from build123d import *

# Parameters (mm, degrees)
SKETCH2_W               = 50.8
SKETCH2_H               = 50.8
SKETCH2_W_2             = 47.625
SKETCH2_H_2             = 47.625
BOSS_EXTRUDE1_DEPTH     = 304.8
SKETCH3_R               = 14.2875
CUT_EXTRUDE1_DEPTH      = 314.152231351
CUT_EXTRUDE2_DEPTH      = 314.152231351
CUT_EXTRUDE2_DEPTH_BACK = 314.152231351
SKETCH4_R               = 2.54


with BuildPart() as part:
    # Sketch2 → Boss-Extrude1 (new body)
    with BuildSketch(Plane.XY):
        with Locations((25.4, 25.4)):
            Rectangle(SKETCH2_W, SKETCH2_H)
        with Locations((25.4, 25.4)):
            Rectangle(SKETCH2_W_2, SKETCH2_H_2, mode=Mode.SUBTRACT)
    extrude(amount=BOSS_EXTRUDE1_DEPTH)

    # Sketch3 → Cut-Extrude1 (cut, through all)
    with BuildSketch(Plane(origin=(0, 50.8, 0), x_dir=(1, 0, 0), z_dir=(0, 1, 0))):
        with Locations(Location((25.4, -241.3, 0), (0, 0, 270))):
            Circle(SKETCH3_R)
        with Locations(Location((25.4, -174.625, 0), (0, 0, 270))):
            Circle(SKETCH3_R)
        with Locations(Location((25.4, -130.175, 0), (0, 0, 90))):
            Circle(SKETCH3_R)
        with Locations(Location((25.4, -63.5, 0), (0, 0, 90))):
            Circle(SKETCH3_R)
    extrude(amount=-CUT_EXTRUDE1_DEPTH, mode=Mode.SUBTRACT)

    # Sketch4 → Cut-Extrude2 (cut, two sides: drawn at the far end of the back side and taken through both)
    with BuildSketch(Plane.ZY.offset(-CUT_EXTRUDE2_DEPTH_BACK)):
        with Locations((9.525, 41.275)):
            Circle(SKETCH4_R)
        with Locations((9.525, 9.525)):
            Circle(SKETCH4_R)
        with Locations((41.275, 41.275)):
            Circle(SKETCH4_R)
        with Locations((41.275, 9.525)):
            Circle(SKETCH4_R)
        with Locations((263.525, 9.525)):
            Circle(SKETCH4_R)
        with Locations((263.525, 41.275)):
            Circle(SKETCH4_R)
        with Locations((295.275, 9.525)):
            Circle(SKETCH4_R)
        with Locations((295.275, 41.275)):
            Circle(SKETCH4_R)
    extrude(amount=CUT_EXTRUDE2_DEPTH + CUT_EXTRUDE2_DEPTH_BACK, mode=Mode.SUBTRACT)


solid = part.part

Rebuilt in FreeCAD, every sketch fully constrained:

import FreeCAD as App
import Part
import Sketcher
Q = App.Units.Quantity

doc = App.newDocument("Part")
body = doc.addObject("PartDesign::Body", "Body")

# Sketch on XY plane
sketch1 = body.newObject("Sketcher::SketchObject", "Sketch")
sketch1.AttachmentSupport = (doc.getObject("XY_Plane"), [""])
sketch1.MapMode = "FlatFace"
sketch1.addGeometry([
    Part.LineSegment(App.Vector(0, 51, 0), App.Vector(0, 0, 0)),  # 0
    Part.LineSegment(App.Vector(0, 0, 0), App.Vector(51, 0, 0)),  # 1
    Part.LineSegment(App.Vector(51, 0, 0), App.Vector(51, 51, 0)),  # 2
    Part.LineSegment(App.Vector(51, 51, 0), App.Vector(0, 51, 0)),  # 3
    Part.LineSegment(App.Vector(49, 2, 0), App.Vector(2, 2, 0)),  # 4
    Part.LineSegment(App.Vector(2, 2, 0), App.Vector(2, 49, 0)),  # 5
    Part.LineSegment(App.Vector(2, 49, 0), App.Vector(49, 49, 0)),  # 6
    Part.LineSegment(App.Vector(49, 49, 0), App.Vector(49, 2, 0)),  # 7
], False)
sketch1.addConstraint([
    Sketcher.Constraint("Coincident", 0, 2, 1, 1),
    Sketcher.Constraint("Coincident", 1, 2, 2, 1),
    Sketcher.Constraint("Coincident", 2, 2, 3, 1),
    Sketcher.Constraint("Coincident", 3, 2, 0, 1),
    Sketcher.Constraint("Coincident", 4, 2, 5, 1),
    Sketcher.Constraint("Coincident", 5, 2, 6, 1),
    Sketcher.Constraint("Coincident", 6, 2, 7, 1),
    Sketcher.Constraint("Coincident", 7, 2, 4, 1),
    Sketcher.Constraint("Vertical", 0),
    Sketcher.Constraint("Horizontal", 1),
    Sketcher.Constraint("Vertical", 2),
    Sketcher.Constraint("Horizontal", 3),
    Sketcher.Constraint("Horizontal", 4),
    Sketcher.Constraint("Vertical", 5),
    Sketcher.Constraint("Horizontal", 6),
    Sketcher.Constraint("Vertical", 7),
    Sketcher.Constraint("Coincident", 0, 2, -1, 1),
    Sketcher.Constraint("Equal", 3, 0),
    Sketcher.Constraint("Equal", 6, 5),
    Sketcher.Constraint("DistanceX", 1, 1, 1, 2, Q("2 in")),
    Sketcher.Constraint("DistanceX", 4, 2, 4, 1, Q("1.875 in")),
    Sketcher.Constraint("DistanceX", -1, 1, 4, 2, Q("0.0625 in")),
    Sketcher.Constraint("DistanceY", -1, 1, 4, 2, Q("0.0625 in")),
])
pad1 = body.newObject("PartDesign::Pad", "Pad")
pad1.Profile = sketch1
pad1.Length = Q("12 in")

# Sketch on XZ plane
sketch2 = body.newObject("Sketcher::SketchObject", "Sketch001")
sketch2.AttachmentSupport = (doc.getObject("XZ_Plane"), [""])
sketch2.MapMode = "FlatFace"
sketch2.AttachmentOffset = App.Placement(App.Vector(0, 0, -2 * 25.4), App.Rotation())
sketch2.addGeometry([
    Part.Circle(App.Vector(25, 241, 0), App.Vector(0, 0, 1), 14),
    Part.Circle(App.Vector(25, 175, 0), App.Vector(0, 0, 1), 14),
    Part.Circle(App.Vector(25, 130, 0), App.Vector(0, 0, 1), 14),
    Part.Circle(App.Vector(25, 64, 0), App.Vector(0, 0, 1), 14),
], False)
sketch2.addConstraint([
    Sketcher.Constraint("Equal", 0, 1),
    Sketcher.Constraint("Equal", 1, 2),
    Sketcher.Constraint("Equal", 2, 3),
    Sketcher.Constraint("Vertical", 0, 3, 1, 3),
    Sketcher.Constraint("Vertical", 1, 3, 2, 3),
    Sketcher.Constraint("Vertical", 2, 3, 3, 3),
    Sketcher.Constraint("Diameter", 0, Q("1.125 in")),
    Sketcher.Constraint("DistanceX", -1, 1, 0, 3, Q("1 in")),
    Sketcher.Constraint("DistanceY", 3, 3, 0, 3, Q("7 in")),
    Sketcher.Constraint("DistanceY", -1, 1, 0, 3, Q("9.5 in")),
    Sketcher.Constraint("DistanceY", 2, 3, 1, 3, Q("1.75 in")),
    Sketcher.Constraint("DistanceY", -1, 1, 1, 3, Q("6.875 in")),
])
pocket1 = body.newObject("PartDesign::Pocket", "Pocket")
pocket1.Profile = sketch2
pocket1.Type = "ThroughAll"
pocket1.Reversed = True

# Sketch on YZ plane
sketch3 = body.newObject("Sketcher::SketchObject", "Sketch002")
sketch3.AttachmentSupport = (doc.getObject("YZ_Plane"), [""])
sketch3.MapMode = "FlatFace"
sketch3.addGeometry([
    Part.Circle(App.Vector(41.3, 9.5, 0), App.Vector(0, 0, 1), 2.5),  # 0
    Part.Circle(App.Vector(9.5, 9.5, 0), App.Vector(0, 0, 1), 2.5),  # 1
    Part.Circle(App.Vector(41.3, 41.3, 0), App.Vector(0, 0, 1), 2.5),  # 2
    Part.Circle(App.Vector(9.5, 41.3, 0), App.Vector(0, 0, 1), 2.5),  # 3
    Part.Circle(App.Vector(9.5, 263.5, 0), App.Vector(0, 0, 1), 2.5),  # 4
    Part.Circle(App.Vector(41.3, 263.5, 0), App.Vector(0, 0, 1), 2.5),  # 5
    Part.Circle(App.Vector(9.5, 295.3, 0), App.Vector(0, 0, 1), 2.5),  # 6
    Part.Circle(App.Vector(41.3, 295.3, 0), App.Vector(0, 0, 1), 2.5),  # 7
], False)
sketch3.addConstraint([
    Sketcher.Constraint("Equal", 0, 1),
    Sketcher.Constraint("Equal", 1, 2),
    Sketcher.Constraint("Equal", 2, 3),
    Sketcher.Constraint("Equal", 3, 4),
    Sketcher.Constraint("Equal", 4, 5),
    Sketcher.Constraint("Equal", 5, 6),
    Sketcher.Constraint("Equal", 6, 7),
    Sketcher.Constraint("Horizontal", 0, 3, 1, 3),
    Sketcher.Constraint("Horizontal", 2, 3, 3, 3),
    Sketcher.Constraint("Horizontal", 4, 3, 5, 3),
    Sketcher.Constraint("Horizontal", 6, 3, 7, 3),
    Sketcher.Constraint("Vertical", 0, 3, 2, 3),
    Sketcher.Constraint("Vertical", 1, 3, 3, 3),
    Sketcher.Constraint("Vertical", 3, 3, 4, 3),
    Sketcher.Constraint("Vertical", 2, 3, 5, 3),
    Sketcher.Constraint("Vertical", 4, 3, 6, 3),
    Sketcher.Constraint("Vertical", 5, 3, 7, 3),
    Sketcher.Constraint("Diameter", 0, Q("0.2 in")),
    Sketcher.Constraint("DistanceY", 1, 3, 4, 3, Q("10 in")),
    Sketcher.Constraint("DistanceY", 3, 3, 6, 3, Q("10 in")),
    Sketcher.Constraint("DistanceX", 1, 3, 0, 3, Q("1.25 in")),
    Sketcher.Constraint("DistanceY", 0, 3, 2, 3, Q("1.25 in")),
    Sketcher.Constraint("DistanceX", -1, 1, 0, 3, Q("1.625 in")),
    Sketcher.Constraint("DistanceY", -1, 1, 0, 3, Q("0.375 in")),
])
pocket2 = body.newObject("PartDesign::Pocket", "Pocket001")
pocket2.Profile = sketch3
pocket2.Type = "ThroughAll"
pocket2.Midplane = True

doc.recompute()
